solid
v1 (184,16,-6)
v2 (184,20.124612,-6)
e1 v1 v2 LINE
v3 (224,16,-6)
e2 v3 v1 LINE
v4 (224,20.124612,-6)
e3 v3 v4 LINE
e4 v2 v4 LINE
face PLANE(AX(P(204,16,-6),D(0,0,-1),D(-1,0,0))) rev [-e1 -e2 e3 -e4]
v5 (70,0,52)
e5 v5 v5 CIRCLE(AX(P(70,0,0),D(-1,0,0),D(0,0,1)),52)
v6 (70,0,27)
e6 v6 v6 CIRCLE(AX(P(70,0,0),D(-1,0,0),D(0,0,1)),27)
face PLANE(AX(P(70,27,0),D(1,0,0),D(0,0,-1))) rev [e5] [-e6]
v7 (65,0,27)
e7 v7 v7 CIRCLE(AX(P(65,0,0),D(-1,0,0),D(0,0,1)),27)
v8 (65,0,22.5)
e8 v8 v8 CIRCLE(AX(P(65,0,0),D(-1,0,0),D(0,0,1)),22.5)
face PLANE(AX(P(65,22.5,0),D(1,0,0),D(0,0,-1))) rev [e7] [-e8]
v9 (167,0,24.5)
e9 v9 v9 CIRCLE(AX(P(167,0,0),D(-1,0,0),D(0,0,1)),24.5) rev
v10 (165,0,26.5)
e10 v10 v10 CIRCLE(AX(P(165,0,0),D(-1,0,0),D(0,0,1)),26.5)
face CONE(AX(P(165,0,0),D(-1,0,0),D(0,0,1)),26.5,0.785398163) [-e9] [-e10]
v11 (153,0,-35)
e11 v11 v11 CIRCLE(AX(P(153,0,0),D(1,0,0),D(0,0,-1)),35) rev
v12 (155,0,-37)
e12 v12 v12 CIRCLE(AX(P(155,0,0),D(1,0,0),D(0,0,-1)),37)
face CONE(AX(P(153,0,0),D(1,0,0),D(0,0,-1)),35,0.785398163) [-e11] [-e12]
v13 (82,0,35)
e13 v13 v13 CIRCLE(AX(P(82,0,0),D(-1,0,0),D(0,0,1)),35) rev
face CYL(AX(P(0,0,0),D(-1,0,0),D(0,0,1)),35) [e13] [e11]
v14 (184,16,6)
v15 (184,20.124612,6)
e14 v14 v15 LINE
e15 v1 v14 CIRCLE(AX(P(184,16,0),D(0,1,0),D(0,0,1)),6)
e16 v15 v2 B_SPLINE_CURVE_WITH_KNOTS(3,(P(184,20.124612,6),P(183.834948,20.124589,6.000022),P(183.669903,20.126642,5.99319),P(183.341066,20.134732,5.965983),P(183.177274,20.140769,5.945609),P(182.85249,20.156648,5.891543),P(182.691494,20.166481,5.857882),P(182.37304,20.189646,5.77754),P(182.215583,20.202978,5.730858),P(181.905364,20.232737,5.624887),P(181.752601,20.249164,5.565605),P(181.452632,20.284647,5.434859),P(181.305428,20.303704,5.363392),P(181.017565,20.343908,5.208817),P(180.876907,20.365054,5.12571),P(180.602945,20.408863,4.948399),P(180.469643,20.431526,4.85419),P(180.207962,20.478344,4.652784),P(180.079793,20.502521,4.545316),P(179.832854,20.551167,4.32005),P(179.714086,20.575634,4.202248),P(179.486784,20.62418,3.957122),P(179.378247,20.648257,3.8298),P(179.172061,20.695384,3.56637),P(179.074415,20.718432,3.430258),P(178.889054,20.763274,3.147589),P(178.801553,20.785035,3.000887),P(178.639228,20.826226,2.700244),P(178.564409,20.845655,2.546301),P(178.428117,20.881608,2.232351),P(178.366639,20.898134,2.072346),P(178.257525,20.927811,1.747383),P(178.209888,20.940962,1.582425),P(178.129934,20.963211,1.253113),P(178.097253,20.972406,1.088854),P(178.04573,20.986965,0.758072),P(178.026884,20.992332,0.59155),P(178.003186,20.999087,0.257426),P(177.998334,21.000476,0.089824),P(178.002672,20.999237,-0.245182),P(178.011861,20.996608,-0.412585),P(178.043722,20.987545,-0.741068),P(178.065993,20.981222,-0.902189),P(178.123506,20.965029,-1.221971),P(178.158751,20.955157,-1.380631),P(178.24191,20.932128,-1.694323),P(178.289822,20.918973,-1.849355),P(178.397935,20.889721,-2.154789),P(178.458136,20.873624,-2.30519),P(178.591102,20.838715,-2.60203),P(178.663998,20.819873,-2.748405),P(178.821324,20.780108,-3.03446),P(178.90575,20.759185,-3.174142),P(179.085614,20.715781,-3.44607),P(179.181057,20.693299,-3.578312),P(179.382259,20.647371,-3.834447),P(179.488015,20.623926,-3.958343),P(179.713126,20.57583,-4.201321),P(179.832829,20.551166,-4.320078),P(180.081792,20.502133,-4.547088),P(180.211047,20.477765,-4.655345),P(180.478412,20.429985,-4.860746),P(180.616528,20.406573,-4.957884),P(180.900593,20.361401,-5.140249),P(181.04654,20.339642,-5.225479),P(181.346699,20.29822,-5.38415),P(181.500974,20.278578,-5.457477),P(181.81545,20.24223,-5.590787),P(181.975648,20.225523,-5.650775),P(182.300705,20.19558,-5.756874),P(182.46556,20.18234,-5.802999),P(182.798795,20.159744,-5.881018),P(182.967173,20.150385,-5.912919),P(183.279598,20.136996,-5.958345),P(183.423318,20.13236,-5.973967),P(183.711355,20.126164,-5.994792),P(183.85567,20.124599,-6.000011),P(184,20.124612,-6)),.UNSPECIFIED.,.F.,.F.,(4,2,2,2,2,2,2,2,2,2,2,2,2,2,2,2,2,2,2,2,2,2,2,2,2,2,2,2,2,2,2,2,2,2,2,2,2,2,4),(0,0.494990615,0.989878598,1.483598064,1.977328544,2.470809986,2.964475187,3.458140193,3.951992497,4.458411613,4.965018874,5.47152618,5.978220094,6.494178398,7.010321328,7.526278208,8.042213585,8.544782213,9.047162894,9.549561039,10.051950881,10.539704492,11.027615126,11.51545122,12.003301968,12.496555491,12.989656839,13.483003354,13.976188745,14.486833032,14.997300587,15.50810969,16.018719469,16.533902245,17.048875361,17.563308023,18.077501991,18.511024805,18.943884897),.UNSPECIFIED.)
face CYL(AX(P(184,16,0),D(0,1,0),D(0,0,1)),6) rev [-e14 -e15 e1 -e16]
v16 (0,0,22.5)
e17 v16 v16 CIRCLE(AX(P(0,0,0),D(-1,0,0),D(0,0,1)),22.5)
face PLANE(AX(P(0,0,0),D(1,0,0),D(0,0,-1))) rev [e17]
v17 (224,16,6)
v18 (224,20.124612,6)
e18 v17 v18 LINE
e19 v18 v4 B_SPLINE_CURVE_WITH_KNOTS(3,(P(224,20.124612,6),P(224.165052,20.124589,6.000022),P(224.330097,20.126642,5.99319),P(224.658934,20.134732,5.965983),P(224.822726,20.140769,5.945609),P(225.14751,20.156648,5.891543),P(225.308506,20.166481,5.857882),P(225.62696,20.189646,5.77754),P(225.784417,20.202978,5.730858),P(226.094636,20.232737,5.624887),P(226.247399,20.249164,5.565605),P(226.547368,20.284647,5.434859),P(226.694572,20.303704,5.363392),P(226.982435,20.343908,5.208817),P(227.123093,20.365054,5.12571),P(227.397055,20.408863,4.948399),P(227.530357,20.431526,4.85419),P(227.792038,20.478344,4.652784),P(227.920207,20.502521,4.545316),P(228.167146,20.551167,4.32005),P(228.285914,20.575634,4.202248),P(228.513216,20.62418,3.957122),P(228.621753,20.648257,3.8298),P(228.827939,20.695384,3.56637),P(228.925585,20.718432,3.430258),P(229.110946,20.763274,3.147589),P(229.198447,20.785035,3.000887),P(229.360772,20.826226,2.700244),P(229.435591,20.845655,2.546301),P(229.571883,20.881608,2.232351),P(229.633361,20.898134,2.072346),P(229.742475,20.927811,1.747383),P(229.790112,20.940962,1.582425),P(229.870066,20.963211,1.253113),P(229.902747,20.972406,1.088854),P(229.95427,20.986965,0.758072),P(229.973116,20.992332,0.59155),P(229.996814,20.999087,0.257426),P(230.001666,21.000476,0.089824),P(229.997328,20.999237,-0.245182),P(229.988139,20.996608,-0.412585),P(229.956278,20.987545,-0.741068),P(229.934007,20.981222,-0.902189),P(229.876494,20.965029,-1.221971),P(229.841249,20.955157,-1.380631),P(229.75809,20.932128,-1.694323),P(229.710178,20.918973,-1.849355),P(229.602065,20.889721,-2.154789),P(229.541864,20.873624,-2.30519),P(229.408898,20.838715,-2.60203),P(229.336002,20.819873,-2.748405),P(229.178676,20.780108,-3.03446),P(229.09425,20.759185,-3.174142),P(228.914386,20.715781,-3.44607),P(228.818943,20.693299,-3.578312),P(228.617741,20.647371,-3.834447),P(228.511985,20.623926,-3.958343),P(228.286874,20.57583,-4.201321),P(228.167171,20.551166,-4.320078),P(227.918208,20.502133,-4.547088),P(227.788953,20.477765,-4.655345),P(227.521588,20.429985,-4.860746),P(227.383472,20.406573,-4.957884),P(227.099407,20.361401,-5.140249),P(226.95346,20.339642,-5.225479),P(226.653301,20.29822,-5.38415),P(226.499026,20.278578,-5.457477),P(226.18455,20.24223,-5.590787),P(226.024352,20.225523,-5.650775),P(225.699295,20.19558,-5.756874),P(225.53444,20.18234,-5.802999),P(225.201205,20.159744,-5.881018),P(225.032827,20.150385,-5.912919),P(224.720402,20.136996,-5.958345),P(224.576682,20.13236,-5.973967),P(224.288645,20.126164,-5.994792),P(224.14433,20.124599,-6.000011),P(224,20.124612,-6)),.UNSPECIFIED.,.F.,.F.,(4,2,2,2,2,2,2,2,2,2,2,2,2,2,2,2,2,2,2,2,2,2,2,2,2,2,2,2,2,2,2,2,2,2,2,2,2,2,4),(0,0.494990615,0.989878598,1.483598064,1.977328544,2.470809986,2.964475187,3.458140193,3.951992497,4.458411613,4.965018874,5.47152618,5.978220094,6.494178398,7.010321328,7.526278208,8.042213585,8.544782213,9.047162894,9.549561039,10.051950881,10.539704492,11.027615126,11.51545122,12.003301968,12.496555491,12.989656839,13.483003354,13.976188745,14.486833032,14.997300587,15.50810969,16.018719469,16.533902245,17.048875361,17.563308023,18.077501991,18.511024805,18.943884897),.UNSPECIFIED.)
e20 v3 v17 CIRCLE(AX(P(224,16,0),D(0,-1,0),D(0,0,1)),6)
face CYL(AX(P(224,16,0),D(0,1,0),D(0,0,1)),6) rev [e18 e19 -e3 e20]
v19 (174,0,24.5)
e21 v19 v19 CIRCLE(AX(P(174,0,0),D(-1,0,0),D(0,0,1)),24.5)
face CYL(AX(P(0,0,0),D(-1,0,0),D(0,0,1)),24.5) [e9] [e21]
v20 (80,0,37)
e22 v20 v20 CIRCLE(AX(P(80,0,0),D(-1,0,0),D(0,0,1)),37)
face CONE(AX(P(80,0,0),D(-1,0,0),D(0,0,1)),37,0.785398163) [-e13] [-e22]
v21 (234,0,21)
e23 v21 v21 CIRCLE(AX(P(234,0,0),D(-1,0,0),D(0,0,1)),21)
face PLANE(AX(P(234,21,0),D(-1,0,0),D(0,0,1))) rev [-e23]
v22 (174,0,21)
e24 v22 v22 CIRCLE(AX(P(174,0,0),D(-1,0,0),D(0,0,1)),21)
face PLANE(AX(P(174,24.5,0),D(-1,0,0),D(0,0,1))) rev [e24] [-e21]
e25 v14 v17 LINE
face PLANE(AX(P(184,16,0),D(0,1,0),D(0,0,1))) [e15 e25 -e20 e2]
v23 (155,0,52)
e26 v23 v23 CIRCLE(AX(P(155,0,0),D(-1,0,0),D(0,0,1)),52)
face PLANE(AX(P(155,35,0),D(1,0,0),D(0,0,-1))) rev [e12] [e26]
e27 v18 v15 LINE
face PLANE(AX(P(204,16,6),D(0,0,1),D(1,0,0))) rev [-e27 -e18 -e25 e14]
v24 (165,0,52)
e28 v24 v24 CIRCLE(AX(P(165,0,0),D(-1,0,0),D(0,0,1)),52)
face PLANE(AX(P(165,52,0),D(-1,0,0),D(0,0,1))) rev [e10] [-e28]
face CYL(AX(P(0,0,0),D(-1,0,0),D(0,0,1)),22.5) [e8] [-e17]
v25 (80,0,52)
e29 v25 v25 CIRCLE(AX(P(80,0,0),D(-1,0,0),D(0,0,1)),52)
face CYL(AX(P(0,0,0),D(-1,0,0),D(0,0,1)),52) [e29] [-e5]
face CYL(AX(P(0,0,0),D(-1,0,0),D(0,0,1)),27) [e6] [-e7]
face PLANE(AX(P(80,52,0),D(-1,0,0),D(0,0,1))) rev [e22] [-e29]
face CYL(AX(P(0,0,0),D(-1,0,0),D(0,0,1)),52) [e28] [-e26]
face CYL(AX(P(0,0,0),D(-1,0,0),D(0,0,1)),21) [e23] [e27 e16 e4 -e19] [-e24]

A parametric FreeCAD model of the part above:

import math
import FreeCAD as App
import Part
import Sketcher
from FreeCAD import Vector
Q = App.Units.Quantity


def edges_at(feature, points):
    """Names of the edges that pass closest to the given points."""
    edges = feature.Shape.Edges
    near = lambda p: min(range(len(edges)), key=lambda i: edges[i].distToShape(Part.Vertex(*p))[0])
    return sorted({f"Edge{near(p) + 1}" for p in points})

doc = App.newDocument("Part")
body = doc.addObject("PartDesign::Body", "Body")

# Sketch on XY plane
sketch1 = body.newObject("Sketcher::SketchObject", "Sketch")
sketch1.AttachmentSupport = (doc.getObject("XY_Plane"), [""])
sketch1.MapMode = "FlatFace"
sketch1.addGeometry([
    Part.LineSegment(Vector(0, 22.5, 0), Vector(0, 0, 0)),  # 0
    Part.LineSegment(Vector(0, 0, 0), Vector(234, 0, 0)),  # 1
    Part.LineSegment(Vector(234, 0, 0), Vector(234, 21, 0)),  # 2
    Part.LineSegment(Vector(234, 21, 0), Vector(174, 21, 0)),  # 3
    Part.LineSegment(Vector(174, 21, 0), Vector(174, 24.5, 0)),  # 4
    Part.LineSegment(Vector(174, 24.5, 0), Vector(165, 24.5, 0)),  # 5
    Part.LineSegment(Vector(165, 24.5, 0), Vector(165, 52, 0)),  # 6
    Part.LineSegment(Vector(165, 52, 0), Vector(155, 52, 0)),  # 7
    Part.LineSegment(Vector(155, 52, 0), Vector(155, 35, 0)),  # 8
    Part.LineSegment(Vector(155, 35, 0), Vector(80, 35, 0)),  # 9
    Part.LineSegment(Vector(80, 35, 0), Vector(80, 52, 0)),  # 10
    Part.LineSegment(Vector(80, 52, 0), Vector(70, 52, 0)),  # 11
    Part.LineSegment(Vector(70, 52, 0), Vector(70, 27, 0)),  # 12
    Part.LineSegment(Vector(70, 27, 0), Vector(65, 27, 0)),  # 13
    Part.LineSegment(Vector(65, 27, 0), Vector(65, 22.5, 0)),  # 14
    Part.LineSegment(Vector(65, 22.5, 0), Vector(0, 22.5, 0)),  # 15
], False)
sketch1.addConstraint([
    Sketcher.Constraint("Coincident", 0, 2, 1, 1),
    Sketcher.Constraint("Coincident", 1, 2, 2, 1),
    Sketcher.Constraint("Coincident", 2, 2, 3, 1),
    Sketcher.Constraint("Coincident", 3, 2, 4, 1),
    Sketcher.Constraint("Coincident", 4, 2, 5, 1),
    Sketcher.Constraint("Coincident", 5, 2, 6, 1),
    Sketcher.Constraint("Coincident", 6, 2, 7, 1),
    Sketcher.Constraint("Coincident", 7, 2, 8, 1),
    Sketcher.Constraint("Coincident", 8, 2, 9, 1),
    Sketcher.Constraint("Coincident", 9, 2, 10, 1),
    Sketcher.Constraint("Coincident", 10, 2, 11, 1),
    Sketcher.Constraint("Coincident", 11, 2, 12, 1),
    Sketcher.Constraint("Coincident", 12, 2, 13, 1),
    Sketcher.Constraint("Coincident", 13, 2, 14, 1),
    Sketcher.Constraint("Coincident", 14, 2, 15, 1),
    Sketcher.Constraint("Coincident", 15, 2, 0, 1),
    Sketcher.Constraint("Vertical", 0),
    Sketcher.Constraint("Horizontal", 1),
    Sketcher.Constraint("Vertical", 2),
    Sketcher.Constraint("Horizontal", 3),
    Sketcher.Constraint("Vertical", 4),
    Sketcher.Constraint("Horizontal", 5),
    Sketcher.Constraint("Vertical", 6),
    Sketcher.Constraint("Horizontal", 7),
    Sketcher.Constraint("Vertical", 8),
    Sketcher.Constraint("Horizontal", 9),
    Sketcher.Constraint("Vertical", 10),
    Sketcher.Constraint("Horizontal", 11),
    Sketcher.Constraint("Vertical", 12),
    Sketcher.Constraint("Horizontal", 13),
    Sketcher.Constraint("Vertical", 14),
    Sketcher.Constraint("Horizontal", 15),
    Sketcher.Constraint("Coincident", 0, 2, -1, 1),
    Sketcher.Constraint("Horizontal", 7, 2, 10, 2),
    Sketcher.Constraint("Equal", 7, 11),
    Sketcher.Constraint("DistanceX", 1, 1, 1, 2, Q("234 mm")),
    Sketcher.Constraint("DistanceX", 3, 2, 3, 1, Q("60 mm")),
    Sketcher.Constraint("DistanceX", 5, 2, 5, 1, Q("9 mm")),
    Sketcher.Constraint("DistanceX", 7, 2, 7, 1, Q("10 mm")),
    Sketcher.Constraint("DistanceX", 9, 2, 9, 1, Q("75 mm")),
    Sketcher.Constraint("DistanceX", 13, 2, 13, 1, Q("5 mm")),
    Sketcher.Constraint("DistanceY", 2, 1, 2, 2, Q("21 mm")),
    Sketcher.Constraint("DistanceY", 8, 2, 8, 1, Q("17 mm")),
    Sketcher.Constraint("DistanceY", 12, 2, 12, 1, Q("25 mm")),
    Sketcher.Constraint("DistanceY", 0, 2, 0, 1, Q("22.5 mm")),
    Sketcher.Constraint("DistanceY", 4, 1, 4, 2, Q("3.5 mm")),
    Sketcher.Constraint("DistanceY", 6, 1, 6, 2, Q("27.5 mm")),
])
revolution = body.newObject("PartDesign::Revolution", "Revolution")
revolution.Profile = sketch1
revolution.ReferenceAxis = (sketch1, ["H_Axis"])
revolution.Angle = 360
doc.recompute()

chamfer = body.newObject("PartDesign::Chamfer", "Chamfer")
chamfer.Base = (revolution, edges_at(revolution, [(165, -24.5, 0), (155, -35, 0), (80, -35, 0)]))
chamfer.Size = 2

# Sketch on XZ plane
sketch2 = body.newObject("Sketcher::SketchObject", "Sketch001")
sketch2.AttachmentSupport = (doc.getObject("XZ_Plane"), [""])
sketch2.MapMode = "FlatFace"
sketch2.AttachmentOffset = App.Placement(Vector(0, 0, -21), App.Rotation())
sketch2.addGeometry([
    Part.LineSegment(Vector(204, 6, 0), Vector(204, -6, 0)),
    Part.LineSegment(Vector(204, -6, 0), Vector(184, -6, 0)),
    Part.ArcOfCircle(Part.Circle(Vector(184, 0, 0), Vector(0, 0, 1), 6), math.radians(90), math.radians(270)),
    Part.LineSegment(Vector(184, 6, 0), Vector(204, 6, 0)),
], False)
sketch2.addConstraint([
    Sketcher.Constraint("Coincident", 0, 2, 1, 1),
    Sketcher.Constraint("Tangent", 1, 2, 2, 2),
    Sketcher.Constraint("Tangent", 2, 1, 3, 1),
    Sketcher.Constraint("Coincident", 3, 2, 0, 1),
    Sketcher.Constraint("Vertical", 0),
    Sketcher.Constraint("Horizontal", 1),
    Sketcher.Constraint("Horizontal", 3),
    Sketcher.Constraint("PointOnObject", 2, 3, -1),
    Sketcher.Constraint("Radius", 2, Q("6 mm")),
    Sketcher.Constraint("DistanceX", 1, 2, 1, 1, Q("20 mm")),
    Sketcher.Constraint("DistanceX", -1, 1, 2, 3, Q("184 mm")),
])
pocket1 = body.newObject("PartDesign::Pocket", "Pocket")
pocket1.Profile = sketch2
pocket1.Length = 5
pocket1.Reversed = True
doc.recompute()

datumplane = body.newObject("PartDesign::Plane", "DatumPlane")
datumplane.AttachmentSupport = (doc.getObject("YZ_Plane"), [""])
datumplane.MapMode = "FlatFace"
datumplane.AttachmentOffset = App.Placement(Vector(0, 0, 204), App.Rotation())
mirrored = body.newObject("PartDesign::Mirrored", "Mirrored")
mirrored.Originals = [pocket1]
mirrored.MirrorPlane = (datumplane, [""])
body.Tip = mirrored

doc.recompute()
